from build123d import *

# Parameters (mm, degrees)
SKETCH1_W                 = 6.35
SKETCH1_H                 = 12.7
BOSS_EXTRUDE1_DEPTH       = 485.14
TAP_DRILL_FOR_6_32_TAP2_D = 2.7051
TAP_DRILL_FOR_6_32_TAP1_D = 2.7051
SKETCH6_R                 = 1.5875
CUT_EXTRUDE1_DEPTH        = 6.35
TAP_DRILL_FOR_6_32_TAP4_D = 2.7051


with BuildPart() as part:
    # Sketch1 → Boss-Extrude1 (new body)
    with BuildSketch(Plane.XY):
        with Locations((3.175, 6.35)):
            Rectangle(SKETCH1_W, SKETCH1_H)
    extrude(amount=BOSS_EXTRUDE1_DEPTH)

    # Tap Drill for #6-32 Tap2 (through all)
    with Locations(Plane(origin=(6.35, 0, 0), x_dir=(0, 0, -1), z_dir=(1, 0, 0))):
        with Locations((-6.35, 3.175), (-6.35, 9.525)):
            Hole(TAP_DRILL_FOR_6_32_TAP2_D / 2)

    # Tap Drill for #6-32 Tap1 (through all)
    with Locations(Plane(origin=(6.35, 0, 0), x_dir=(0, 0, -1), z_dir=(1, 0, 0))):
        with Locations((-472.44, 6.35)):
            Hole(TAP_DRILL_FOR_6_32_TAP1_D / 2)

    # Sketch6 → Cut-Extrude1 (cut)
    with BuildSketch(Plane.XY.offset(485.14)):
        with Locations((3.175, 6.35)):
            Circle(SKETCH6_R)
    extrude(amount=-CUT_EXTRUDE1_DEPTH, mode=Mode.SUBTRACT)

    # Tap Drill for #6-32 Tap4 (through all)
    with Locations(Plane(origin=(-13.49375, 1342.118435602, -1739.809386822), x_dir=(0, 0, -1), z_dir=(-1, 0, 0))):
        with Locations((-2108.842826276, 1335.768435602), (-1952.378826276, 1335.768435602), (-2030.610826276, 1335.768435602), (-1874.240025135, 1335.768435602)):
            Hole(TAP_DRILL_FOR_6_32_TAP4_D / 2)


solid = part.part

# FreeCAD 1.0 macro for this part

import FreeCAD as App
import Part
import Sketcher
from FreeCAD import Vector
Q = App.Units.Quantity


def add_polygon(sketch, points):
    """Adds a closed chain of lines whose ends are joined by coincident constraints."""
    first, n = sketch.GeometryCount, len(points)
    for a, b in zip(points, points[1:] + points[:1]):
        sketch.addGeometry(Part.LineSegment(App.Vector(*a, 0), App.Vector(*b, 0)), False)
    for i in range(n):
        sketch.addConstraint(Sketcher.Constraint("Coincident", first + i, 2, first + (i + 1) % n, 1))

doc = App.newDocument("Part")
body = doc.addObject("PartDesign::Body", "Body")

sketch1 = body.newObject("Sketcher::SketchObject", "Sketch")
sketch1.AttachmentSupport = (doc.getObject("XY_Plane"), [""])
sketch1.MapMode = "FlatFace"
add_polygon(sketch1, [(0, 12.7), (0, 0), (6.35, 0), (6.35, 12.7)])
sketch1.addConstraint(Sketcher.Constraint("Vertical", 0))
sketch1.addConstraint(Sketcher.Constraint("Horizontal", 1))
sketch1.addConstraint(Sketcher.Constraint("Vertical", 2))
sketch1.addConstraint(Sketcher.Constraint("Horizontal", 3))
sketch1.addConstraint(Sketcher.Constraint("Coincident", 0, 2, -1, 1))
sketch1.addConstraint(Sketcher.Constraint("DistanceY", 0, 2, 0, 1, Q("0.5 in")))
sketch1.addConstraint(Sketcher.Constraint("DistanceX", 1, 1, 1, 2, Q("0.25 in")))
pad1 = body.newObject("PartDesign::Pad", "Pad")
pad1.Profile = sketch1
pad1.Length = Q("19.1 in")

sketch2 = body.newObject("Sketcher::SketchObject", "Sketch001")
sketch2.AttachmentSupport = (doc.getObject("YZ_Plane"), [""])
sketch2.MapMode = "FlatFace"
sketch2.AttachmentOffset = App.Placement(Vector(0, 0, 0.25 * 25.4), App.Rotation())
sketch2.addGeometry(Part.Circle(Vector(3.175, 6.35, 0), Vector(0, 0, 1), 1.35255), False)
sketch2.addGeometry(Part.Circle(Vector(9.525, 6.35, 0), Vector(0, 0, 1), 1.35255), False)
sketch2.addConstraint(Sketcher.Constraint("Equal", 0, 1))
sketch2.addConstraint(Sketcher.Constraint("Horizontal", 0, 3, 1, 3))
sketch2.addConstraint(Sketcher.Constraint("Diameter", 0, Q("0.1065 in")))
sketch2.addConstraint(Sketcher.Constraint("DistanceY", -1, 1, 0, 3, Q("0.25 in")))
sketch2.addConstraint(Sketcher.Constraint("DistanceX", 0, 3, 1, 3, Q("0.25 in")))
sketch2.addConstraint(Sketcher.Constraint("DistanceX", -1, 1, 0, 3, Q("0.125 in")))
doc.recompute()
hole = body.newObject("PartDesign::Hole", "Hole")
hole.Profile = sketch2
hole.ThreadType = "None"
hole.Diameter = Q("0.1065 in")
hole.DepthType = "ThroughAll"

sketch3 = body.newObject("Sketcher::SketchObject", "Sketch002")
sketch3.AttachmentSupport = (doc.getObject("YZ_Plane"), [""])
sketch3.MapMode = "FlatFace"
sketch3.AttachmentOffset = App.Placement(Vector(0, 0, 0.25 * 25.4), App.Rotation())
sketch3.addGeometry(Part.Circle(Vector(6.35, 472.44, 0), Vector(0, 0, 1), 1.35255), False)
sketch3.addConstraint(Sketcher.Constraint("Diameter", 0, Q("0.1065 in")))
sketch3.addConstraint(Sketcher.Constraint("DistanceY", -1, 1, 0, 3, Q("18.6 in")))
sketch3.addConstraint(Sketcher.Constraint("DistanceX", -1, 1, 0, 3, Q("0.25 in")))
doc.recompute()
hole2 = body.newObject("PartDesign::Hole", "Hole001")
hole2.Profile = sketch3
hole2.ThreadType = "None"
hole2.Diameter = Q("0.1065 in")
hole2.DepthType = "ThroughAll"

sketch4 = body.newObject("Sketcher::SketchObject", "Sketch003")
sketch4.AttachmentSupport = (doc.getObject("XY_Plane"), [""])
sketch4.MapMode = "FlatFace"
sketch4.AttachmentOffset = App.Placement(Vector(0, 0, 19.1 * 25.4), App.Rotation())
sketch4.addGeometry(Part.Circle(Vector(3.175, 6.35, 0), Vector(0, 0, 1), 1.5875), False)
sketch4.addConstraint(Sketcher.Constraint("Diameter", 0, Q("0.125 in")))
sketch4.addConstraint(Sketcher.Constraint("DistanceY", -1, 1, 0, 3, Q("0.25 in")))
sketch4.addConstraint(Sketcher.Constraint("DistanceX", -1, 1, 0, 3, Q("0.125 in")))
pocket1 = body.newObject("PartDesign::Pocket", "Pocket")
pocket1.Profile = sketch4
pocket1.Length = Q("0.25 in")

sketch5 = body.newObject("Sketcher::SketchObject", "Sketch004")
sketch5.AttachmentSupport = (doc.getObject("YZ_Plane"), [""])
sketch5.MapMode = "FlatFace"
sketch5.AttachmentOffset = App.Placement(Vector(0, 0, -0.53125 * 25.4), App.Rotation())
sketch5.addGeometry(Part.Circle(Vector(6.35, 369.033439, 0), Vector(0, 0, 1), 1.35255), False)
sketch5.addGeometry(Part.Circle(Vector(6.35, 212.569439, 0), Vector(0, 0, 1), 1.35255), False)
sketch5.addGeometry(Part.Circle(Vector(6.35, 290.801439, 0), Vector(0, 0, 1), 1.35255), False)
sketch5.addGeometry(Part.Circle(Vector(6.35, 134.430638, 0), Vector(0, 0, 1), 1.35255), False)
sketch5.addConstraint(Sketcher.Constraint("Equal", 0, 1))
sketch5.addConstraint(Sketcher.Constraint("Equal", 1, 2))
sketch5.addConstraint(Sketcher.Constraint("Equal", 2, 3))
sketch5.addConstraint(Sketcher.Constraint("Vertical", 0, 3, 1, 3))
sketch5.addConstraint(Sketcher.Constraint("Vertical", 1, 3, 2, 3))
sketch5.addConstraint(Sketcher.Constraint("Vertical", 2, 3, 3, 3))
sketch5.addConstraint(Sketcher.Constraint("Diameter", 0, Q("0.1065 in")))
sketch5.addConstraint(Sketcher.Constraint("DistanceX", -1, 1, 0, 3, Q("0.25 in")))
sketch5.addConstraint(Sketcher.Constraint("DistanceY", 1, 3, 0, 3, Q("6.16 in")))
sketch5.addConstraint(Sketcher.Constraint("DistanceY", 1, 3, 2, 3, Q("3.08 in")))
sketch5.addConstraint(Sketcher.Constraint("DistanceY", 3, 3, 1, 3, 78.138801))
sketch5.addConstraint(Sketcher.Constraint("DistanceY", -1, 1, 0, 3, 369.033439))
doc.recompute()
hole3 = body.newObject("PartDesign::Hole", "Hole002")
hole3.Profile = sketch5
hole3.ThreadType = "None"
hole3.Diameter = Q("0.1065 in")
hole3.DepthType = "ThroughAll"
hole3.Reversed = True

doc.recompute()
